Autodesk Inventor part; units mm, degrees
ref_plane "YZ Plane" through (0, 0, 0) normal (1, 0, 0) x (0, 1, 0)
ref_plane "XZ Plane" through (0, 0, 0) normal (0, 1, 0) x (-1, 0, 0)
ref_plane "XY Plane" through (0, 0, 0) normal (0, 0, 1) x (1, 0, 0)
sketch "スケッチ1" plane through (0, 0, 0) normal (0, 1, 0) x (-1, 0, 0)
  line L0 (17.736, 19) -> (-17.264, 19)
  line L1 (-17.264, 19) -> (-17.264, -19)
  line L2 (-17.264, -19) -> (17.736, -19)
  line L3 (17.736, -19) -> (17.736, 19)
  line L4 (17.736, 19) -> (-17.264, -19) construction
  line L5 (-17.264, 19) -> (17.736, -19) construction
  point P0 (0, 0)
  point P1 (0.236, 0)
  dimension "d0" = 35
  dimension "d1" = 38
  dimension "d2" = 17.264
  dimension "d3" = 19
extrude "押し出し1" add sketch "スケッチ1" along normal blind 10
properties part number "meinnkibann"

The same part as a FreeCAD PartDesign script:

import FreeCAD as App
import Part
import Sketcher

V = App.Vector


def add_polygon(sketch, points):
    """Adds a closed chain of lines whose ends are joined by coincident constraints."""
    first, n = sketch.GeometryCount, len(points)
    for a, b in zip(points, points[1:] + points[:1]):
        sketch.addGeometry(Part.LineSegment(App.Vector(*a, 0), App.Vector(*b, 0)), False)
    for i in range(n):
        sketch.addConstraint(Sketcher.Constraint("Coincident", first + i, 2, first + (i + 1) % n, 1))

doc = App.newDocument("Part")
params = doc.addObject("Spreadsheet::Sheet", "Params")
for row, (alias, value) in enumerate([
    ("sketch1_width", "35 mm"),
    ("sketch1_height", "38 mm"),
    ("pad1_length", "10 mm"),
], start=1):
    params.set(f"A{row}", alias)
    params.set(f"B{row}", "=" + value)
    params.setAlias(f"B{row}", alias)

body = doc.addObject("PartDesign::Body", "Body")

# Sketch on XZ plane
sketch1 = body.newObject("Sketcher::SketchObject", "Sketch")
sketch1.AttachmentSupport = (doc.getObject("XZ_Plane"), [""])
sketch1.MapMode = "FlatFace"
add_polygon(sketch1, [(-18, -19), (-18, 19), (17, 19), (17, -19)])  # lines 0-3
sketch1.addConstraint([
    Sketcher.Constraint("Vertical", 0),
    Sketcher.Constraint("Horizontal", 1),
    Sketcher.Constraint("Vertical", 2),
    Sketcher.Constraint("Horizontal", 3),
    Sketcher.Constraint("DistanceX", 1, 1, 1, 2, 35.0),
    Sketcher.Constraint("DistanceY", 0, 1, 0, 2, 38.0),
    Sketcher.Constraint("DistanceY", -1, 1, 0, 2, 19.0),
    Sketcher.Constraint("DistanceX", -1, 1, 1, 2, 17.264),
])
sketch1.setExpression("Constraints[8]", "Params.sketch1_width")
sketch1.setExpression("Constraints[9]", "Params.sketch1_height")
pad1 = body.newObject("PartDesign::Pad", "Pad")
pad1.Profile = sketch1
pad1.setExpression("Length", "Params.pad1_length")
pad1.Reversed = True

doc.recompute()
